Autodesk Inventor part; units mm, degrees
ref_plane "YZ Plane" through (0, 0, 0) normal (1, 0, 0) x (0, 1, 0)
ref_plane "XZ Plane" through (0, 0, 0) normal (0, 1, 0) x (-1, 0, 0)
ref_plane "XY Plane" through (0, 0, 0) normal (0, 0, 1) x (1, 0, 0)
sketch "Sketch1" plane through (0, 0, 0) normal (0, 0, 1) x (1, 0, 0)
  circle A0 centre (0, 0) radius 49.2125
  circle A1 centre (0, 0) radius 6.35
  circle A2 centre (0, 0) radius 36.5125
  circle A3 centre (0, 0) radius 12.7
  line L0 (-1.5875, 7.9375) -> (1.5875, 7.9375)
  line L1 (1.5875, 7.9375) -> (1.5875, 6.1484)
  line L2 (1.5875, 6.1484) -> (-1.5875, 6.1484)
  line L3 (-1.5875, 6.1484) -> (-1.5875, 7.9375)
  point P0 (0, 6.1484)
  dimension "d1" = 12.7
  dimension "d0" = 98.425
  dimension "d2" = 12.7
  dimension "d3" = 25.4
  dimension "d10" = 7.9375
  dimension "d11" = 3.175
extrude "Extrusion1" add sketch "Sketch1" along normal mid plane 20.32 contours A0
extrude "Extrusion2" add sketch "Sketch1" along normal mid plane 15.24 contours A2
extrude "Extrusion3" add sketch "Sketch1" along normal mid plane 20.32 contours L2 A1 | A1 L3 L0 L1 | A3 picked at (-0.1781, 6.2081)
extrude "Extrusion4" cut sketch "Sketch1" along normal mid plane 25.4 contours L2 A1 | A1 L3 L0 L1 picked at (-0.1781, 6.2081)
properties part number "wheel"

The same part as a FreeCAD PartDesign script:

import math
import FreeCAD as App
import Part
import Sketcher
from FreeCAD import Vector
Q = App.Units.Quantity

doc = App.newDocument("Part")
body = doc.addObject("PartDesign::Body", "Body")

# Sketch on XY plane
sketch1 = doc.addObject("Sketcher::SketchObject", "Sketch")
body.addObject(sketch1)
sketch1.AttachmentSupport = (doc.XY_Plane, [""])
sketch1.MapMode = "FlatFace"
sketch1.addGeometry(Part.Circle(Vector(0, 0, 0), Vector(0, 0, 1), 49), False)
sketch1.addGeometry(Part.Circle(Vector(0, 0, 0), Vector(0, 0, 1), 37), False)
sketch1.addConstraint(Sketcher.Constraint("Coincident", 0, 3, -1, 1))
sketch1.addConstraint(Sketcher.Constraint("Coincident", 1, 3, -1, 1))
sketch1.addConstraint(Sketcher.Constraint("Diameter", 0, Q("3.875 in")))
sketch1.addConstraint(Sketcher.Constraint("Diameter", 1, Q("2.875 in")))
pad1 = doc.addObject("PartDesign::Pad", "Pad")
body.addObject(pad1)
pad1.Profile = sketch1
pad1.Length = Q("0.8 in")
pad1.Midplane = True

# Sketch on XY plane
sketch2 = doc.addObject("Sketcher::SketchObject", "Sketch001")
body.addObject(sketch2)
sketch2.AttachmentSupport = (doc.XY_Plane, [""])
sketch2.MapMode = "FlatFace"
sketch2.addGeometry(Part.Circle(Vector(0, 0, 0), Vector(0, 0, 1), 37), False)
sketch2.addGeometry(Part.Circle(Vector(0, 0, 0), Vector(0, 0, 1), 13), False)
sketch2.addConstraint(Sketcher.Constraint("Coincident", 0, 3, -1, 1))
sketch2.addConstraint(Sketcher.Constraint("Coincident", 1, 3, -1, 1))
sketch2.addConstraint(Sketcher.Constraint("Diameter", 1, Q("1 in")))
sketch2.addConstraint(Sketcher.Constraint("Diameter", 0, Q("2.875 in")))
pad2 = doc.addObject("PartDesign::Pad", "Pad001")
body.addObject(pad2)
pad2.Profile = sketch2
pad2.Length = Q("0.6 in")
pad2.Midplane = True

# Sketch on XY plane
sketch3 = doc.addObject("Sketcher::SketchObject", "Sketch002")
body.addObject(sketch3)
sketch3.AttachmentSupport = (doc.XY_Plane, [""])
sketch3.MapMode = "FlatFace"
sketch3.addGeometry(Part.Circle(Vector(0, 0, 0), Vector(0, 0, 1), 12.7), False)
sketch3.addGeometry(Part.LineSegment(Vector(-1.6, 6.1, 0), Vector(1.6, 6.1, 0)), False)
sketch3.addGeometry(Part.ArcOfCircle(Part.Circle(Vector(0, 0, 0), Vector(0, 0, 1), 6.3), math.radians(104), math.radians(436)), False)
sketch3.addConstraint(Sketcher.Constraint("Coincident", 1, 1, 2, 1))
sketch3.addConstraint(Sketcher.Constraint("Coincident", 2, 2, 1, 2))
sketch3.addConstraint(Sketcher.Constraint("Horizontal", 1))
sketch3.addConstraint(Sketcher.Constraint("Coincident", 0, 3, -1, 1))
sketch3.addConstraint(Sketcher.Constraint("Coincident", 2, 3, -1, 1))
sketch3.addConstraint(Sketcher.Constraint("Diameter", 0, Q("1 in")))
sketch3.addConstraint(Sketcher.Constraint("Radius", 2, Q("0.25 in")))
sketch3.addConstraint(Sketcher.Constraint("DistanceX", 1, 1, 1, 2, Q("0.125 in")))
pad3 = doc.addObject("PartDesign::Pad", "Pad002")
body.addObject(pad3)
pad3.Profile = sketch3
pad3.Length = Q("0.8 in")
pad3.Midplane = True

# Sketch on XY plane
sketch4 = doc.addObject("Sketcher::SketchObject", "Sketch003")
body.addObject(sketch4)
sketch4.AttachmentSupport = (doc.XY_Plane, [""])
sketch4.MapMode = "FlatFace"
sketch4.addGeometry(Part.LineSegment(Vector(-1.6, 6.1, 0), Vector(1.6, 6.1, 0)), False)
sketch4.addGeometry(Part.LineSegment(Vector(1.6, 6.1, 0), Vector(1.6, 7.9, 0)), False)
sketch4.addGeometry(Part.LineSegment(Vector(1.6, 7.9, 0), Vector(-1.6, 7.9, 0)), False)
sketch4.addGeometry(Part.LineSegment(Vector(-1.6, 7.9, 0), Vector(-1.6, 6.1, 0)), False)
sketch4.addConstraint(Sketcher.Constraint("Coincident", 0, 2, 1, 1))
sketch4.addConstraint(Sketcher.Constraint("Coincident", 1, 2, 2, 1))
sketch4.addConstraint(Sketcher.Constraint("Coincident", 2, 2, 3, 1))
sketch4.addConstraint(Sketcher.Constraint("Coincident", 3, 2, 0, 1))
sketch4.addConstraint(Sketcher.Constraint("Horizontal", 0))
sketch4.addConstraint(Sketcher.Constraint("Vertical", 1))
sketch4.addConstraint(Sketcher.Constraint("Horizontal", 2))
sketch4.addConstraint(Sketcher.Constraint("Vertical", 3))
sketch4.addConstraint(Sketcher.Constraint("DistanceX", 0, 1, 0, 2, Q("0.125 in")))
sketch4.addConstraint(Sketcher.Constraint("DistanceY", -1, 1, 1, 2, Q("0.3125 in")))
sketch4.addConstraint(Sketcher.Constraint("DistanceX", -1, 1, 0, 2, Q("0.0625 in")))
sketch4.addConstraint(Sketcher.Constraint("DistanceY", 1, 1, 1, 2, 1.789))
pocket1 = doc.addObject("PartDesign::Pocket", "Pocket")
body.addObject(pocket1)
pocket1.Profile = sketch4
pocket1.Length = Q("1 in")
pocket1.Midplane = True

doc.recompute()
